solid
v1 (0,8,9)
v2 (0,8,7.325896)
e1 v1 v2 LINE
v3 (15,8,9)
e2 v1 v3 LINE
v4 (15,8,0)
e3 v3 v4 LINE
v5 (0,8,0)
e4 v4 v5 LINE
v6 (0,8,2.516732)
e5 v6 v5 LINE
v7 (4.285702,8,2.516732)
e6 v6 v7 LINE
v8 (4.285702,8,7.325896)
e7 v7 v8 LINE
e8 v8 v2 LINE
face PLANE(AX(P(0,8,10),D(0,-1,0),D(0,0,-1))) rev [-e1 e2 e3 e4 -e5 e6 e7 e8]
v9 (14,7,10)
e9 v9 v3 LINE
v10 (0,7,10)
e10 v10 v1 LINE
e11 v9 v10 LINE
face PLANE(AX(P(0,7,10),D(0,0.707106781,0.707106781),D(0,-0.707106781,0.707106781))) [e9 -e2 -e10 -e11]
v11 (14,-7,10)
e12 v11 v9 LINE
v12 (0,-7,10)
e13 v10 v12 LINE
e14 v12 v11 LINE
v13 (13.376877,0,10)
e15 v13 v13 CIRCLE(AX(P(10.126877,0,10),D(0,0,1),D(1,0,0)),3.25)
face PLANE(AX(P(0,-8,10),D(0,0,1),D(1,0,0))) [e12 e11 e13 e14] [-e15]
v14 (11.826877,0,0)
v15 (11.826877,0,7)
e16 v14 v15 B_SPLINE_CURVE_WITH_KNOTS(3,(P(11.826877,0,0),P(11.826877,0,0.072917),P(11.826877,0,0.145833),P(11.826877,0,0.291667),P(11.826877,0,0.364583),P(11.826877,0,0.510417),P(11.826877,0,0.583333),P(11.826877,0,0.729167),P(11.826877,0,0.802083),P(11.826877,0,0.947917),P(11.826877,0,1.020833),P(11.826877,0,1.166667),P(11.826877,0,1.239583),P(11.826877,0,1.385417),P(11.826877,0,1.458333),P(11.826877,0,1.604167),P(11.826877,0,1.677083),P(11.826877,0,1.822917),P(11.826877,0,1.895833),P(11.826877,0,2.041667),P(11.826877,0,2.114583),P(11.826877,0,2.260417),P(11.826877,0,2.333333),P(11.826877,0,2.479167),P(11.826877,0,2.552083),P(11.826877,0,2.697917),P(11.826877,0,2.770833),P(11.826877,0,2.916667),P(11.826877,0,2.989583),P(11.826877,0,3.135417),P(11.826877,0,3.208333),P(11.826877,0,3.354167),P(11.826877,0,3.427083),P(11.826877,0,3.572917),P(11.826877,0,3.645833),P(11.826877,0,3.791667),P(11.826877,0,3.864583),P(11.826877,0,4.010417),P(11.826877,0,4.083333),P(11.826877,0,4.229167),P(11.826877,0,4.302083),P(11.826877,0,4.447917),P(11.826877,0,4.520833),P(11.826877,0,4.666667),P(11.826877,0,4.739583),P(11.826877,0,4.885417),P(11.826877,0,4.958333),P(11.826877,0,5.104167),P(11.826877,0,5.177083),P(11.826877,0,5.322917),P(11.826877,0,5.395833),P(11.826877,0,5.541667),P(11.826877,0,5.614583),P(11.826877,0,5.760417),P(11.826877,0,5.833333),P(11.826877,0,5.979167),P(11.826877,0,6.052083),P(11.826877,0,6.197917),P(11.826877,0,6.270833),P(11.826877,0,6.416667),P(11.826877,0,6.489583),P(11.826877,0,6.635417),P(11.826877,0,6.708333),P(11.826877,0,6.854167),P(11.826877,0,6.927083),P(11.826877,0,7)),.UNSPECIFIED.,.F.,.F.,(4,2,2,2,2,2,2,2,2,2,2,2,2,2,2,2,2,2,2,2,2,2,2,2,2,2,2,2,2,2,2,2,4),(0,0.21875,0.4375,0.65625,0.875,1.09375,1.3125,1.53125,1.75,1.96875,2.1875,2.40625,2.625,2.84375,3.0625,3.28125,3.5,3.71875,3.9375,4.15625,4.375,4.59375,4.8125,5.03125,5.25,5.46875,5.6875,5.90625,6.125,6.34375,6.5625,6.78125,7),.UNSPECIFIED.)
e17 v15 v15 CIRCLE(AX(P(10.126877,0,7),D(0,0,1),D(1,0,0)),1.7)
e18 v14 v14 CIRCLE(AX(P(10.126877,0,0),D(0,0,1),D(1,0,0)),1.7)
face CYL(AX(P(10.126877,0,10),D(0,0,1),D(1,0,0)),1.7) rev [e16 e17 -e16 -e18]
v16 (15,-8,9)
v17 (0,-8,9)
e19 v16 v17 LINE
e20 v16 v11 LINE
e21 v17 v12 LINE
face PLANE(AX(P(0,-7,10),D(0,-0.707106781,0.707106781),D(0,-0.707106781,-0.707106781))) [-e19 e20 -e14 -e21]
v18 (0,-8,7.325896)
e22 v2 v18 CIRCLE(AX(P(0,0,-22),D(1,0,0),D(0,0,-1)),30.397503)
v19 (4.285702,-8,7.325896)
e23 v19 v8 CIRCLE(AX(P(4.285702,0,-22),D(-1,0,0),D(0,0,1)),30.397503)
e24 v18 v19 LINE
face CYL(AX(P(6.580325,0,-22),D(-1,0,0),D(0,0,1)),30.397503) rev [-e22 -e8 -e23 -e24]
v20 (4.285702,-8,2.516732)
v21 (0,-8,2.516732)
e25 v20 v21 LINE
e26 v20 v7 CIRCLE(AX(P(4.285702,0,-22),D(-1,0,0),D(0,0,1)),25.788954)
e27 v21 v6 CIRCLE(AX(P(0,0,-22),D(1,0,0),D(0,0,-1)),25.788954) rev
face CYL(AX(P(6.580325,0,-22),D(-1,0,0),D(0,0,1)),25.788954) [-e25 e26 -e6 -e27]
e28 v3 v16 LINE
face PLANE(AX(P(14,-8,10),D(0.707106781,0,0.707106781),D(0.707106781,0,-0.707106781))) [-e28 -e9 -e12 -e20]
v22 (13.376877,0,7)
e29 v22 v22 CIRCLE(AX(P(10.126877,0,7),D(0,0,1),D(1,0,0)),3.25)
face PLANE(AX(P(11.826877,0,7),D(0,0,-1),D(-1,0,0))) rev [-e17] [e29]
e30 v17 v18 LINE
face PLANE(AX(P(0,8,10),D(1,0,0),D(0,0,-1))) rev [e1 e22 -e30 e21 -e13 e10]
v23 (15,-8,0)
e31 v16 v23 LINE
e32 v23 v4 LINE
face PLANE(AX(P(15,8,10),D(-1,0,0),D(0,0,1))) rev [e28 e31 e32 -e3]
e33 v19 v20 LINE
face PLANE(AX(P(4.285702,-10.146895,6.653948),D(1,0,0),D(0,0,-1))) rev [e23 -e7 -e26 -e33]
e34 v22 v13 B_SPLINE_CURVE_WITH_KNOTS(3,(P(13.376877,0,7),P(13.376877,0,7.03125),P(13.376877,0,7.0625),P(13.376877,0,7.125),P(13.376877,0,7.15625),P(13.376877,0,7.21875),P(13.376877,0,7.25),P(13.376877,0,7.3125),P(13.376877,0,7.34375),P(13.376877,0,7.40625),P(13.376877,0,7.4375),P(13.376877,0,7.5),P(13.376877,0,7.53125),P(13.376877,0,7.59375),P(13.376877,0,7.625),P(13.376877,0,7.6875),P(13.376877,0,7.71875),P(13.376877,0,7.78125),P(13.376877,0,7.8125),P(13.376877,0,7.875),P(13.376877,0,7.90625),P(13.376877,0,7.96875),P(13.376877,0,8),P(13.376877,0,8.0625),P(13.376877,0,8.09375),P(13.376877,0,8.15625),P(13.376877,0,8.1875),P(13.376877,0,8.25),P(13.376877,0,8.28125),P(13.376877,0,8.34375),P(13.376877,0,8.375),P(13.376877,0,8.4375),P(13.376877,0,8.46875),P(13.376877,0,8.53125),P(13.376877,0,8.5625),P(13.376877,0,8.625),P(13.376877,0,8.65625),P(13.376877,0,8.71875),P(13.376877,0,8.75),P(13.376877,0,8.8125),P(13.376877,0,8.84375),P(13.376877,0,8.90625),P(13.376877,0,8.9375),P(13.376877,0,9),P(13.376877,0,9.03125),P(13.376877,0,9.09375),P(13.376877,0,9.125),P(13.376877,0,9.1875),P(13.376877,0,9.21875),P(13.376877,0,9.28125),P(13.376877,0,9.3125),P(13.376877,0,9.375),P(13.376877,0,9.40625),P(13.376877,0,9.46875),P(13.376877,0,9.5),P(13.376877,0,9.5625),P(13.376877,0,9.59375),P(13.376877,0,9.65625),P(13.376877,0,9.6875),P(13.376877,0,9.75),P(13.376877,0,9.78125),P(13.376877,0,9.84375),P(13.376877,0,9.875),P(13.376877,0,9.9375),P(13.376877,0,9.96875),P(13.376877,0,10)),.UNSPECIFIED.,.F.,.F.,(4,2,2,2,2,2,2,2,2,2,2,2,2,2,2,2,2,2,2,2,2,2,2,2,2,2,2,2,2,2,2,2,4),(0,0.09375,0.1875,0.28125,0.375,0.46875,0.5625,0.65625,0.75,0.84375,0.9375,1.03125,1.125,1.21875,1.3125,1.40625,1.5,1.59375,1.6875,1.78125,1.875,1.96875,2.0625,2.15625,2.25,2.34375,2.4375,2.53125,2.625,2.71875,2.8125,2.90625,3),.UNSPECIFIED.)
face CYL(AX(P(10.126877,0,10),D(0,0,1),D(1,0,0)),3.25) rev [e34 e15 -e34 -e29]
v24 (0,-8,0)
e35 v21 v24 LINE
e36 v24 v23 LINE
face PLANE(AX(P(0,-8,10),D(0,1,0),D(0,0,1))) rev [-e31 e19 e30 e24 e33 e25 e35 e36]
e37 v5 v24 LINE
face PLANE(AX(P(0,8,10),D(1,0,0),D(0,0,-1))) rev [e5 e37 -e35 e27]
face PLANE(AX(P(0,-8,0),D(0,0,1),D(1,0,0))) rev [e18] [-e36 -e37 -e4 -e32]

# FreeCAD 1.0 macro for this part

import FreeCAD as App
import Part
import Sketcher

V = App.Vector


def edges_at(feature, points):
    """Names of the edges that pass closest to the given points."""
    edges = feature.Shape.Edges
    near = lambda p: min(range(len(edges)), key=lambda i: edges[i].distToShape(Part.Vertex(*p))[0])
    return sorted({f"Edge{near(p) + 1}" for p in points})


def add_polygon(sketch, points):
    """Adds a closed chain of lines whose ends are joined by coincident constraints."""
    first, n = sketch.GeometryCount, len(points)
    for a, b in zip(points, points[1:] + points[:1]):
        sketch.addGeometry(Part.LineSegment(App.Vector(*a, 0), App.Vector(*b, 0)), False)
    for i in range(n):
        sketch.addConstraint(Sketcher.Constraint("Coincident", first + i, 2, first + (i + 1) % n, 1))

doc = App.newDocument("Part")
body = doc.addObject("PartDesign::Body", "Body")

sketch1 = body.newObject("Sketcher::SketchObject", "Sketch")
sketch1.AttachmentSupport = (doc.getObject("XY_Plane"), [""])
sketch1.MapMode = "FlatFace"
add_polygon(sketch1, [(0, 8), (0, -8), (15, -8), (15, 8)])
sketch1.addConstraint(Sketcher.Constraint("Vertical", 0))
sketch1.addConstraint(Sketcher.Constraint("Horizontal", 1))
sketch1.addConstraint(Sketcher.Constraint("Vertical", 2))
sketch1.addConstraint(Sketcher.Constraint("Horizontal", 3))
sketch1.addConstraint(Sketcher.Constraint("Symmetric", 0, 2, 3, 2, -1, 1))
sketch1.addConstraint(Sketcher.Constraint("DistanceX", 1, 1, 1, 2, 15.0))
sketch1.addConstraint(Sketcher.Constraint("DistanceY", 0, 2, 0, 1, 16.0))
pad1 = body.newObject("PartDesign::Pad", "Pad")
pad1.Profile = sketch1
pad1.Length = 10
doc.recompute()

chamfer = body.newObject("PartDesign::Chamfer", "Chamfer")
chamfer.Base = (pad1, edges_at(pad1, [(7.5, 8, 10), (7.5, -8, 10)]))
chamfer.Size = 1

sketch2 = body.newObject("Sketcher::SketchObject", "Sketch001")
sketch2.AttachmentSupport = (doc.getObject("XY_Plane"), [""])
sketch2.MapMode = "FlatFace"
sketch2.AttachmentOffset = App.Placement(V(0, 0, 10), App.Rotation())
sketch2.addGeometry(Part.Circle(V(10.1, 0, 0), V(0, 0, 1), 1.7), False)
sketch2.addConstraint(Sketcher.Constraint("PointOnObject", 0, 3, -1))
sketch2.addConstraint(Sketcher.Constraint("Diameter", 0, 3.4))
sketch2.addConstraint(Sketcher.Constraint("DistanceX", -1, 1, 0, 3, 10.126877))
doc.recompute()
hole = body.newObject("PartDesign::Hole", "Hole")
hole.Profile = sketch2
hole.ThreadType = "None"
hole.Diameter = 3.4
hole.DepthType = "ThroughAll"
hole.HoleCutType = "Counterbore"
hole.HoleCutDiameter = 6.5
hole.HoleCutDepth = 3

sketch3 = body.newObject("Sketcher::SketchObject", "Sketch002")
sketch3.AttachmentSupport = (doc.getObject("XZ_Plane"), [""])
sketch3.MapMode = "FlatFace"
add_polygon(sketch3, [(-1.2, 3.8), (-1.2, 8.4), (4.3, 8.4), (4.3, 3.8)])
sketch3.addGeometry(Part.LineSegment(V(-1.2, -22, 0), V(4.3, -22, 0)), True)
sketch3.addConstraint(Sketcher.Constraint("Vertical", 0))
sketch3.addConstraint(Sketcher.Constraint("Horizontal", 1))
sketch3.addConstraint(Sketcher.Constraint("Vertical", 2))
sketch3.addConstraint(Sketcher.Constraint("Horizontal", 3))
sketch3.addConstraint(Sketcher.Constraint("Horizontal", 4))
sketch3.addConstraint(Sketcher.Constraint("Vertical", 3, 2, 4, 1))
sketch3.addConstraint(Sketcher.Constraint("Vertical", 2, 2, 4, 2))
sketch3.addConstraint(Sketcher.Constraint("DistanceY", 4, 1, -1, 1, 22.0))
sketch3.addConstraint(Sketcher.Constraint("DistanceX", 1, 1, 1, 2, 5.528831))
sketch3.addConstraint(Sketcher.Constraint("DistanceY", 0, 1, 0, 2, 4.608549))
sketch3.addConstraint(Sketcher.Constraint("DistanceX", -1, 1, 1, 2, 4.285702))
sketch3.addConstraint(Sketcher.Constraint("DistanceY", -1, 1, 0, 2, 8.397503))
groove = body.newObject("PartDesign::Groove", "Groove")
groove.Profile = sketch3
groove.ReferenceAxis = (sketch3, ["Axis0"])
groove.Angle = 19.5

sketch4 = body.newObject("Sketcher::SketchObject", "Sketch003")
sketch4.AttachmentSupport = (doc.getObject("XZ_Plane"), [""])
sketch4.MapMode = "FlatFace"
add_polygon(sketch4, [(-1.2, 3.8), (-1.2, 8.4), (4.3, 8.4), (4.3, 3.8)])
sketch4.addGeometry(Part.LineSegment(V(4.3, -22, 0), V(-1.2, -22, 0)), True)
sketch4.addConstraint(Sketcher.Constraint("Vertical", 0))
sketch4.addConstraint(Sketcher.Constraint("Horizontal", 1))
sketch4.addConstraint(Sketcher.Constraint("Vertical", 2))
sketch4.addConstraint(Sketcher.Constraint("Horizontal", 3))
sketch4.addConstraint(Sketcher.Constraint("Horizontal", 4))
sketch4.addConstraint(Sketcher.Constraint("Vertical", 2, 2, 4, 1))
sketch4.addConstraint(Sketcher.Constraint("Vertical", 3, 2, 4, 2))
sketch4.addConstraint(Sketcher.Constraint("DistanceY", 4, 1, -1, 1, 22.0))
sketch4.addConstraint(Sketcher.Constraint("DistanceX", 1, 1, 1, 2, 5.528831))
sketch4.addConstraint(Sketcher.Constraint("DistanceY", 0, 1, 0, 2, 4.608549))
sketch4.addConstraint(Sketcher.Constraint("DistanceX", -1, 1, 1, 2, 4.285702))
sketch4.addConstraint(Sketcher.Constraint("DistanceY", -1, 1, 0, 2, 8.397503))
groove2 = body.newObject("PartDesign::Groove", "Groove001")
groove2.Profile = sketch4
groove2.ReferenceAxis = (sketch4, ["Axis0"])
groove2.Angle = 19.5
doc.recompute()

chamfer2 = body.newObject("PartDesign::Chamfer", "Chamfer001")
chamfer2.Base = (groove2, edges_at(groove2, [(15, 0, 10)]))
chamfer2.Size = 1

doc.recompute()
